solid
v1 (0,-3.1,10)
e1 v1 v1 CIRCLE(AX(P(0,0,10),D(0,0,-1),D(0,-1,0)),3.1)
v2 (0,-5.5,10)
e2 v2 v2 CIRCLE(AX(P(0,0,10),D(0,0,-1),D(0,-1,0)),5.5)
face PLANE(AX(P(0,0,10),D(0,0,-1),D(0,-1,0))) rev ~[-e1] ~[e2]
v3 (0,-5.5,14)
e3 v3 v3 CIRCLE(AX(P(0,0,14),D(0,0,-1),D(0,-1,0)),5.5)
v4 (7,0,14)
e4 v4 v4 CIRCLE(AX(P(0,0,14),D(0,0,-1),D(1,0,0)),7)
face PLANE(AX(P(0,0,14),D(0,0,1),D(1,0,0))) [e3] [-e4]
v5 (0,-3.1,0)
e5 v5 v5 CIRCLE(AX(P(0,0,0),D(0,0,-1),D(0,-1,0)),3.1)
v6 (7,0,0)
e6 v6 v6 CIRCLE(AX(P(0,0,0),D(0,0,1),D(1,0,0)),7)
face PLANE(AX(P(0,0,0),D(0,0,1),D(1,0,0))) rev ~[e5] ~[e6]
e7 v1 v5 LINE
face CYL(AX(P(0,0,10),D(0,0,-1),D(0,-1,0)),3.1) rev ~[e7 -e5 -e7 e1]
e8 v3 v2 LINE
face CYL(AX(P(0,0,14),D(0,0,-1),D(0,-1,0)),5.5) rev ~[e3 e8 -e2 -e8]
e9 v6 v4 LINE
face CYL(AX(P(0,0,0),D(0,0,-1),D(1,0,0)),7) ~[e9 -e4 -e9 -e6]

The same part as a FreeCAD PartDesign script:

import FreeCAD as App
import Part
import Sketcher

doc = App.newDocument("Part")
body = doc.addObject("PartDesign::Body", "Body")

# Sketch on XY plane
sketch1 = doc.addObject("Sketcher::SketchObject", "Sketch")
body.addObject(sketch1)
sketch1.AttachmentSupport = (doc.XY_Plane, [""])
sketch1.MapMode = "FlatFace"
sketch1.addGeometry(Part.Circle(App.Vector(0, 0, 0), App.Vector(0, 0, 1), 7), False)
sketch1.addConstraint(Sketcher.Constraint("Coincident", 0, 3, -1, 1))
sketch1.addConstraint(Sketcher.Constraint("Diameter", 0, 14.0))
pad1 = doc.addObject("PartDesign::Pad", "Pad")
body.addObject(pad1)
pad1.Profile = sketch1
pad1.Length = 14

# Sketch on XY plane
sketch2 = doc.addObject("Sketcher::SketchObject", "Sketch001")
body.addObject(sketch2)
sketch2.AttachmentSupport = (doc.XY_Plane, [""])
sketch2.MapMode = "FlatFace"
sketch2.AttachmentOffset = App.Placement(App.Vector(0, 0, 14), App.Rotation())
sketch2.addGeometry(Part.Circle(App.Vector(0, 0, 0), App.Vector(0, 0, 1), 3.1), False)
sketch2.addConstraint(Sketcher.Constraint("Coincident", 0, 3, -1, 1))
sketch2.addConstraint(Sketcher.Constraint("Diameter", 0, 6.2))
doc.recompute()
hole = doc.addObject("PartDesign::Hole", "Hole")
body.addObject(hole)
hole.Profile = sketch2
hole.ThreadType = "None"
hole.Diameter = 6.2
hole.DepthType = "ThroughAll"
hole.HoleCutType = "Counterbore"
hole.HoleCutDiameter = 11
hole.HoleCutDepth = 4

doc.recompute()
